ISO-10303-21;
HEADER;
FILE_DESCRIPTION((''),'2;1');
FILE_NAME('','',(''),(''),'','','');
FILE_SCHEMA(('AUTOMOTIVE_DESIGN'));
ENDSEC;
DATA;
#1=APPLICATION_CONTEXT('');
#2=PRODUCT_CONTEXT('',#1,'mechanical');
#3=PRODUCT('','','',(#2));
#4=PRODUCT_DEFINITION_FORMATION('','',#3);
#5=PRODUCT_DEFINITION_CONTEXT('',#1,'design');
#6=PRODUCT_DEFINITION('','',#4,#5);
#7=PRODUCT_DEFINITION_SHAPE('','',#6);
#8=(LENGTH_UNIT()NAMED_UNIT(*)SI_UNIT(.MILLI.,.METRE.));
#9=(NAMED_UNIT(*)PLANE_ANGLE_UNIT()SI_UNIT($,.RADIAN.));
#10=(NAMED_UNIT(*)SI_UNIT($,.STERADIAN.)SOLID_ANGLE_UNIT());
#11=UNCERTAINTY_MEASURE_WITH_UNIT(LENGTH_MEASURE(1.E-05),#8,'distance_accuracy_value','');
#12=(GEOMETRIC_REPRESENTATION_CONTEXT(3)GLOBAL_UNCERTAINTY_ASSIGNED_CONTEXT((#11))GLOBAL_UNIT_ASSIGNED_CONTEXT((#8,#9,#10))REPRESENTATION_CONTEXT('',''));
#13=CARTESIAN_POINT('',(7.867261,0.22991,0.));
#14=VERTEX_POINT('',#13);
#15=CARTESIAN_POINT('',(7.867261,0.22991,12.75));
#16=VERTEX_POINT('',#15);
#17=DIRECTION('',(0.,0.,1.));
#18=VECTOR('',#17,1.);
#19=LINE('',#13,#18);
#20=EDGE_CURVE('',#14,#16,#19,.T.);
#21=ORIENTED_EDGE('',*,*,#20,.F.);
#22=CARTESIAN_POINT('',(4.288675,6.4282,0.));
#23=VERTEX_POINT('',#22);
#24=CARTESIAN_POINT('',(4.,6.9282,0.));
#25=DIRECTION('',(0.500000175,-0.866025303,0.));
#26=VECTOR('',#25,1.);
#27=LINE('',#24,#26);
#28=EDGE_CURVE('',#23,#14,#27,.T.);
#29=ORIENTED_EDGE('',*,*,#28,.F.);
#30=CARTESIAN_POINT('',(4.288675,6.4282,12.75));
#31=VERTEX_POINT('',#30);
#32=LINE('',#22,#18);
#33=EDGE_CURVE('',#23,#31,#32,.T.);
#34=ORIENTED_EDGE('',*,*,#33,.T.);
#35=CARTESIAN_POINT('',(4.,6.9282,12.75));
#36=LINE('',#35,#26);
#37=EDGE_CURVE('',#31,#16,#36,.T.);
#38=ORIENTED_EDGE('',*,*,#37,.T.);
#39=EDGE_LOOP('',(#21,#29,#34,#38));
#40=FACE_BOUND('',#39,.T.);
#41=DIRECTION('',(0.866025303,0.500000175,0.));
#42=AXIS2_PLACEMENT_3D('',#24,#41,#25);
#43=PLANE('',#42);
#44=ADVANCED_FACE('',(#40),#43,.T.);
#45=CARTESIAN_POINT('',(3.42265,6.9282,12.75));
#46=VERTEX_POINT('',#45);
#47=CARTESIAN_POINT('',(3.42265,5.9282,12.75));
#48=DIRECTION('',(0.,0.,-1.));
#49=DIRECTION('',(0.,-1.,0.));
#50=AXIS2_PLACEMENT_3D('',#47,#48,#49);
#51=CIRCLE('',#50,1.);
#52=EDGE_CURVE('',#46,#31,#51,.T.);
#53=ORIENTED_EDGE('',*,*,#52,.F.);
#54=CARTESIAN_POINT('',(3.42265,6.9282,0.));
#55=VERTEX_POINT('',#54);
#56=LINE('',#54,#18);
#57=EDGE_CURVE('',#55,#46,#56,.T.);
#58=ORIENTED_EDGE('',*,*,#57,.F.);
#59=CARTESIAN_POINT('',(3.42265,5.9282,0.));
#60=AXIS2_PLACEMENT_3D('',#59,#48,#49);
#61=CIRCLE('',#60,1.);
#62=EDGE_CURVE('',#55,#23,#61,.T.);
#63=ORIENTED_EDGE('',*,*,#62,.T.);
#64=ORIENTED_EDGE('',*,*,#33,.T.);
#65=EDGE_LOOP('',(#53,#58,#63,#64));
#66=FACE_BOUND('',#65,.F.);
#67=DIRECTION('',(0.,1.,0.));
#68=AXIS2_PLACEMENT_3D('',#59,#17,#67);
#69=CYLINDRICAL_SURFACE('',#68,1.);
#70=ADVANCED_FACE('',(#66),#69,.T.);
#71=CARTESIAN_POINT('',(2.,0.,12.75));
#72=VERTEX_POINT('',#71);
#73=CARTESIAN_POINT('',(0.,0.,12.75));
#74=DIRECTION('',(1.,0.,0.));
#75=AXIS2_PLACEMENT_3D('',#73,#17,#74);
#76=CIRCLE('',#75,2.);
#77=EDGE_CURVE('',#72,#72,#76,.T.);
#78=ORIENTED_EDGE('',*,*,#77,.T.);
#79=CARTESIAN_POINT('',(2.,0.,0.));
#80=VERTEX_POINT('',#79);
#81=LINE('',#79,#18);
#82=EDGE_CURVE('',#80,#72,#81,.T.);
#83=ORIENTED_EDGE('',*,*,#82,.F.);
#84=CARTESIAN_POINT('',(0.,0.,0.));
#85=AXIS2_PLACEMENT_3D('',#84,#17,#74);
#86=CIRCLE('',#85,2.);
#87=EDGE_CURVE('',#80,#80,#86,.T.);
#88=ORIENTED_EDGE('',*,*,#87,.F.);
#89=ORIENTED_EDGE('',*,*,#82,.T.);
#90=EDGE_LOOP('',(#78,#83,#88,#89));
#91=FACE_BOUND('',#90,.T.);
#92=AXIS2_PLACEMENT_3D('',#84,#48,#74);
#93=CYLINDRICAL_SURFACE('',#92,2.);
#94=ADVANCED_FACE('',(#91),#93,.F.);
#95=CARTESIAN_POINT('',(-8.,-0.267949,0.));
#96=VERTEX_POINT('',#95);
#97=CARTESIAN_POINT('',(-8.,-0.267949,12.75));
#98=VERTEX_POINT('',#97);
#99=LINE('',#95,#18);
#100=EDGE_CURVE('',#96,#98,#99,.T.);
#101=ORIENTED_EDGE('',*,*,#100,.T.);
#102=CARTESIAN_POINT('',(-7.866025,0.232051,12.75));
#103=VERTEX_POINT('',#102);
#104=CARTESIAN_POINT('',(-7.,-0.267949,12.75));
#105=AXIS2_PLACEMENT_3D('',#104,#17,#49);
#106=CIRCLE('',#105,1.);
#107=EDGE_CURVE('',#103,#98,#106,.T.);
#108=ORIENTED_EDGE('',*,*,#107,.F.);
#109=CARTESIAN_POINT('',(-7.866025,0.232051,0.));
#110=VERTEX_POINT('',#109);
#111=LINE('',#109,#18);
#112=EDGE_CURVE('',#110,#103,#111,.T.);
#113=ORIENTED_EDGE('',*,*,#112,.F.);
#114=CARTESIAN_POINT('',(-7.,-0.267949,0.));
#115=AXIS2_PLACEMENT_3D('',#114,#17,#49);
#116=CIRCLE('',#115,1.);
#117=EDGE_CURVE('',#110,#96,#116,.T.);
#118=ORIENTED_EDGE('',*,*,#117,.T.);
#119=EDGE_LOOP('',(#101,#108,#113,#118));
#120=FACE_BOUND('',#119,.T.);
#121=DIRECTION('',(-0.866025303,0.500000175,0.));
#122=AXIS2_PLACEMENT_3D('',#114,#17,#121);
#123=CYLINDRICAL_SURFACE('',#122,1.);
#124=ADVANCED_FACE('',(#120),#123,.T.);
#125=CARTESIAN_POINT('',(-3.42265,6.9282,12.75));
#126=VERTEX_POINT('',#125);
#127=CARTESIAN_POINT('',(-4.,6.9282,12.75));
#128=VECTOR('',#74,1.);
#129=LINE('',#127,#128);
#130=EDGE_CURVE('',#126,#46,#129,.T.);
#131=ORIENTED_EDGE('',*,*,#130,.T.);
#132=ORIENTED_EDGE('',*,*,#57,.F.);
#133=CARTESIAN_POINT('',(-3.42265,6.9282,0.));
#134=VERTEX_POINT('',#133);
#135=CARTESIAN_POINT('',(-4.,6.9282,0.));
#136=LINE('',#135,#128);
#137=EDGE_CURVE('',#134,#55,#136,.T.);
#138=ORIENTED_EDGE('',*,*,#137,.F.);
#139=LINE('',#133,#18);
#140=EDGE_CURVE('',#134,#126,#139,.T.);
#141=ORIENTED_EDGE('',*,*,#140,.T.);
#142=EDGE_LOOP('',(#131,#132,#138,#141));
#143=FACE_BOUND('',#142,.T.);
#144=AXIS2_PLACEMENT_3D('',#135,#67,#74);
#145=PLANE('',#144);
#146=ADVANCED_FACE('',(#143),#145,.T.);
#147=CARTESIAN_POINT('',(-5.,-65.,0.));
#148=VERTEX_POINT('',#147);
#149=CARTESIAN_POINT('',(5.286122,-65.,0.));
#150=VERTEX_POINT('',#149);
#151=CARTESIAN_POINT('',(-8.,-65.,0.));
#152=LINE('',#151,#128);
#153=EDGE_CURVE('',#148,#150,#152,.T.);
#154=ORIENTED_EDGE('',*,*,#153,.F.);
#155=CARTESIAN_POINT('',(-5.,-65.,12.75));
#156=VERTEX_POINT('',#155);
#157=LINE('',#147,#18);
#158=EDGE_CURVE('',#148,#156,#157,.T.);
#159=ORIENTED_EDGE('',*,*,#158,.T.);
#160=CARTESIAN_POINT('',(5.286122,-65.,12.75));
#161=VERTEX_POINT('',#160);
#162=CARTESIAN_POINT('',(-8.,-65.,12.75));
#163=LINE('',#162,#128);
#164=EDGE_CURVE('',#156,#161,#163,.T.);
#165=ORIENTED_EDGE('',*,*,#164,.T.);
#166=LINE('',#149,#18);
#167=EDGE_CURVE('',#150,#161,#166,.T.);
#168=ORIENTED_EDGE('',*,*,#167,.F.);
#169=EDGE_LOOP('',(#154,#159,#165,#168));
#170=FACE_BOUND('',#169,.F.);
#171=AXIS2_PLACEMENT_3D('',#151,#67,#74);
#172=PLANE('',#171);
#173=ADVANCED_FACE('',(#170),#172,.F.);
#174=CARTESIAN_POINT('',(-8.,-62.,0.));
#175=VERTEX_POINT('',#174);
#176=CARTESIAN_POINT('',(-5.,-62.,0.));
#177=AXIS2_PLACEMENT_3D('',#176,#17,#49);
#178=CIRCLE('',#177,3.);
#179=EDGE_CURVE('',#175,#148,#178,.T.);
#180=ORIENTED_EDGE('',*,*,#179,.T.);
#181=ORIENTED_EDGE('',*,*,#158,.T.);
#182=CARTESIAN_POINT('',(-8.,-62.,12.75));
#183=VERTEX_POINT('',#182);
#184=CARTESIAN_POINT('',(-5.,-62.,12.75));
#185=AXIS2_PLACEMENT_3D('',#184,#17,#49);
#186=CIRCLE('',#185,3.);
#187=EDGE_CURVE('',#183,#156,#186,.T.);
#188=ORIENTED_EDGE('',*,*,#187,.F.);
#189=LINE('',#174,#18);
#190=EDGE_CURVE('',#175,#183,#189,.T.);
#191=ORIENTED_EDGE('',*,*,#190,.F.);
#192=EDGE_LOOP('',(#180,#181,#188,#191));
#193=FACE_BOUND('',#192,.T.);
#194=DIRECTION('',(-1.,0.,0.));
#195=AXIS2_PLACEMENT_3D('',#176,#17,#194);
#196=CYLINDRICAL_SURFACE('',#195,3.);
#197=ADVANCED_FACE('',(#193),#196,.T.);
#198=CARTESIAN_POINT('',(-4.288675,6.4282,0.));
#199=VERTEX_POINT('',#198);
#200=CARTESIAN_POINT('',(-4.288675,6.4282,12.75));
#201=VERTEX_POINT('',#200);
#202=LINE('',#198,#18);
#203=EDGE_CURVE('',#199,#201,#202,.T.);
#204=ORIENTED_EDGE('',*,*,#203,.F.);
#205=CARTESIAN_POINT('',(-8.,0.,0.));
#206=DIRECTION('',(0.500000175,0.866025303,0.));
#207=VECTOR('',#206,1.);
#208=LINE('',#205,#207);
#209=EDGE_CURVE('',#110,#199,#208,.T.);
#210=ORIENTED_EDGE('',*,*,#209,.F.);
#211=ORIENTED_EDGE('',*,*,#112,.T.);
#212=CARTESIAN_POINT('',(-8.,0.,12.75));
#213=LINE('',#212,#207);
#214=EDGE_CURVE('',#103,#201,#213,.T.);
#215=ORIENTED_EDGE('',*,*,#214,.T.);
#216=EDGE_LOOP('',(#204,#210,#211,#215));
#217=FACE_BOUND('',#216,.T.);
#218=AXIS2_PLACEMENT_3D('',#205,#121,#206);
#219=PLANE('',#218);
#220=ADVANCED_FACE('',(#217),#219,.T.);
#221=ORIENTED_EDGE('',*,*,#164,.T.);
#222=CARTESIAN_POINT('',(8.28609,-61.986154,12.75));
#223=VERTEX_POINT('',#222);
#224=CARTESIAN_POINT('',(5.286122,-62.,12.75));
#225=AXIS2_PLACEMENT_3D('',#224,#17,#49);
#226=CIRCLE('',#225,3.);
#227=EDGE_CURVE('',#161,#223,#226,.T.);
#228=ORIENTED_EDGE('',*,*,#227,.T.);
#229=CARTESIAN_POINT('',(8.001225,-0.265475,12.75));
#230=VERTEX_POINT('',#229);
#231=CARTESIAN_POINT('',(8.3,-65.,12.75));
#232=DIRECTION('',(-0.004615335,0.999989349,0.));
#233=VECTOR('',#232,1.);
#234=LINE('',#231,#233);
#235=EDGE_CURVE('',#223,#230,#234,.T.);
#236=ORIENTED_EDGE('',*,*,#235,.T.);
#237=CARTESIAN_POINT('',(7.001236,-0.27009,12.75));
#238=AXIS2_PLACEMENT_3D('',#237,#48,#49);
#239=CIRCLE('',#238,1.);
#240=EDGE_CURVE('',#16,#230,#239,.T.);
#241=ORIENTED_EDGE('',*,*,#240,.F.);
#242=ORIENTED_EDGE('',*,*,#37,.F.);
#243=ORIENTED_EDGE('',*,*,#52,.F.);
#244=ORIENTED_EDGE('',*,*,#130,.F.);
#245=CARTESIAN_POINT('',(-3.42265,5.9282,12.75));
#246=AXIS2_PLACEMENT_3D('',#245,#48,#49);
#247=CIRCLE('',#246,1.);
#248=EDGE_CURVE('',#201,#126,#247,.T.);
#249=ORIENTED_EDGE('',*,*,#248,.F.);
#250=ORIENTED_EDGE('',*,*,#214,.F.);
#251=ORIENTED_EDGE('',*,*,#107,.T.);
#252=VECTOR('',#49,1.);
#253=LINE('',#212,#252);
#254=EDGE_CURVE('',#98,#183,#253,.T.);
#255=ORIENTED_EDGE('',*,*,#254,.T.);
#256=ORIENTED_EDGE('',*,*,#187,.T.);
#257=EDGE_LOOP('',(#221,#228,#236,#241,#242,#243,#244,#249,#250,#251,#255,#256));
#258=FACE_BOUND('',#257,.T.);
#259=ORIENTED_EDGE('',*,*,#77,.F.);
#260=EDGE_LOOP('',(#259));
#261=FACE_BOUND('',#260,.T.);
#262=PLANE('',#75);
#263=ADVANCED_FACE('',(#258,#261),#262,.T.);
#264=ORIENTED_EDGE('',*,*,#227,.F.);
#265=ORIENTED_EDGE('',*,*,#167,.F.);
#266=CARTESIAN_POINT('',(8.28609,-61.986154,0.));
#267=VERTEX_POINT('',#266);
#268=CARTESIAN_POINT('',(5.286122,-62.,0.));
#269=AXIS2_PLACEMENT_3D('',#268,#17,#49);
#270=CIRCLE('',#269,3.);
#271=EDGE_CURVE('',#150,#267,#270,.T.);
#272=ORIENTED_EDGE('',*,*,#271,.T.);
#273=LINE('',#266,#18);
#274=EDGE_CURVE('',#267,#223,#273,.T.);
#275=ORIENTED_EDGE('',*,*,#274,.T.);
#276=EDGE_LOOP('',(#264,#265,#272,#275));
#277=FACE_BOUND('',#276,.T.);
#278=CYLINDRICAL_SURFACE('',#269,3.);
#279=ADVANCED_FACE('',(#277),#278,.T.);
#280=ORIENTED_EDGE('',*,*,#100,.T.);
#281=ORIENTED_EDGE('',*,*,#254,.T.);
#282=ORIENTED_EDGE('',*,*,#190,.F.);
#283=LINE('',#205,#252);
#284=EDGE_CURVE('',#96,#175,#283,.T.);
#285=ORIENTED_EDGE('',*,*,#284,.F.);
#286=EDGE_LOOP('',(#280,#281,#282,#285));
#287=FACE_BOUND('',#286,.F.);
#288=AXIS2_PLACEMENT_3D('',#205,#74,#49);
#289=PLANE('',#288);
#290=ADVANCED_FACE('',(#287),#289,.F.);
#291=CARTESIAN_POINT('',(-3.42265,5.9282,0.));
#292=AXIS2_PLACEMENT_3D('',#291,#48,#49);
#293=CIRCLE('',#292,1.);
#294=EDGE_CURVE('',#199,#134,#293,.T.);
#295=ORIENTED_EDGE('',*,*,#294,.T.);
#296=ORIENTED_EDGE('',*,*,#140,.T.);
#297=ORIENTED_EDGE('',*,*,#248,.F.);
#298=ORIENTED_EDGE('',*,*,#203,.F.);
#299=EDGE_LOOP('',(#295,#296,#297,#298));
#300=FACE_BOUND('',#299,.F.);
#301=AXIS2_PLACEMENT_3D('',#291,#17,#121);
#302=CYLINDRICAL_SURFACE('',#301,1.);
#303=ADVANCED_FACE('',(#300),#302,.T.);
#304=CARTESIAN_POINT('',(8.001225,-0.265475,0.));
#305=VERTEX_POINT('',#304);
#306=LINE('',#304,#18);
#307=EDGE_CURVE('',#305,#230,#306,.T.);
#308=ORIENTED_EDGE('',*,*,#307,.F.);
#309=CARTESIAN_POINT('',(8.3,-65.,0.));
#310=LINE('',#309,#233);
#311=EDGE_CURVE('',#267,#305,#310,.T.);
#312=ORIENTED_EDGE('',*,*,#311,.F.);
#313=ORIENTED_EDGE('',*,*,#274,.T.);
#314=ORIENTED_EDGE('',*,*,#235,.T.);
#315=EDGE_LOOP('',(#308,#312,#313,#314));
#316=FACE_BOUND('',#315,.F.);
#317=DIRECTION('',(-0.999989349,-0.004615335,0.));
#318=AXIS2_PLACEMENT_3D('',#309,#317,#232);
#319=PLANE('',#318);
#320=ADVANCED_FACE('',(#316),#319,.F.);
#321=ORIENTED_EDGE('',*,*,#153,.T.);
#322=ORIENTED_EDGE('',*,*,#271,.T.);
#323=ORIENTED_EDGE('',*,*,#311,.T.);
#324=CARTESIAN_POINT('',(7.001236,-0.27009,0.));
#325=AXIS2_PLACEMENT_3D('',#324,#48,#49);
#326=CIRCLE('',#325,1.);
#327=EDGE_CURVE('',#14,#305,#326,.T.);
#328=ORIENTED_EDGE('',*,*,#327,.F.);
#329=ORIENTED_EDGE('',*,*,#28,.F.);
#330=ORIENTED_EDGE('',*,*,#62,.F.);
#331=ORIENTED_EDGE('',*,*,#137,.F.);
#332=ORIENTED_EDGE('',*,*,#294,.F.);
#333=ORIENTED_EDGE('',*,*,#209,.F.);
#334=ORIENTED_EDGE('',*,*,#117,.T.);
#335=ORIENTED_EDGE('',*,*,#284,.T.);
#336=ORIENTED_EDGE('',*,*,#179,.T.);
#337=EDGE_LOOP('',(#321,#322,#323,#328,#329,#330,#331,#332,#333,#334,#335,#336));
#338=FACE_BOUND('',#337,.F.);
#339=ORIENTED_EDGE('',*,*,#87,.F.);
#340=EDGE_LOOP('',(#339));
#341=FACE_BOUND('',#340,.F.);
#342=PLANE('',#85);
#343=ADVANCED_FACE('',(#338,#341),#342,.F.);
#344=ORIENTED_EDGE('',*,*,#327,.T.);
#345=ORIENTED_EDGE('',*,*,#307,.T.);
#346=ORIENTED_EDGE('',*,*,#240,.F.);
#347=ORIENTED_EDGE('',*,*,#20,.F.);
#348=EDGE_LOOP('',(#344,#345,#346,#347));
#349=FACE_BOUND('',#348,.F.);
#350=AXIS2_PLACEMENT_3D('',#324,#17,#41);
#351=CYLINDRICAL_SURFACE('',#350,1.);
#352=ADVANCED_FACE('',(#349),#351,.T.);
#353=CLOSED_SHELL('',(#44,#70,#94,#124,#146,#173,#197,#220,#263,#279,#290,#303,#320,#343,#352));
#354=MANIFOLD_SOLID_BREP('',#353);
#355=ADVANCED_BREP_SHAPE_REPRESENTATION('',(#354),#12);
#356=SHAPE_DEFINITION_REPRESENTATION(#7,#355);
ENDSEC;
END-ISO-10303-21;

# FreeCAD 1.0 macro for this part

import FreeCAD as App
import Part
import Sketcher
Q = App.Units.Quantity


def edges_at(feature, points):
    """Names of the edges that pass closest to the given points."""
    edges = feature.Shape.Edges
    near = lambda p: min(range(len(edges)), key=lambda i: edges[i].distToShape(Part.Vertex(*p))[0])
    return sorted({f"Edge{near(p) + 1}" for p in points})


def add_polygon(sketch, points):
    """Adds a closed chain of lines whose ends are joined by coincident constraints."""
    first, n = sketch.GeometryCount, len(points)
    for a, b in zip(points, points[1:] + points[:1]):
        sketch.addGeometry(Part.LineSegment(App.Vector(*a, 0), App.Vector(*b, 0)), False)
    for i in range(n):
        sketch.addConstraint(Sketcher.Constraint("Coincident", first + i, 2, first + (i + 1) % n, 1))

doc = App.newDocument("Part")
params = doc.addObject("Spreadsheet::Sheet", "Params")
for row, (alias, value) in enumerate([
    ("sketch1_diameter", "4 mm"),
    ("sketch1_height", "65 mm"),
    ("sketch1_width", "16.3 mm"),
    ("pad1_length", "12.75 mm"),
    ("fillet_radius", "1 mm"),
    ("fillet2_radius", "3 mm"),
], start=1):
    params.set(f"A{row}", alias)
    params.set(f"B{row}", "=" + value)
    params.setAlias(f"B{row}", alias)

body = doc.addObject("PartDesign::Body", "Body")

# Sketch on XY plane
sketch1 = body.newObject("Sketcher::SketchObject", "Sketch")
sketch1.AttachmentSupport = (doc.getObject("XY_Plane"), [""])
sketch1.MapMode = "FlatFace"
add_polygon(sketch1, [(-4, 6.9), (-8, 0), (-8, -65), (8.3, -65), (8, 0), (4, 6.9)])  # lines 0-5
sketch1.addGeometry(Part.Circle(App.Vector(0, 0, 0), App.Vector(0, 0, 1), 2), False)  # 6
sketch1.addConstraint([
    Sketcher.Constraint("Vertical", 1),
    Sketcher.Constraint("Horizontal", 2),
    Sketcher.Constraint("Horizontal", 5),
    Sketcher.Constraint("Coincident", 6, 3, -1, 1),
    Sketcher.Constraint("Symmetric", 0, 2, 3, 2, -1, 1),
    Sketcher.Constraint("PointOnObject", 0, 2, -1),
    Sketcher.Constraint("Equal", 0, 4),
    Sketcher.Constraint("Diameter", 6, Q("4 mm")),
    Sketcher.Constraint("DistanceY", 1, 2, 1, 1, Q("65 mm")),
    Sketcher.Constraint("DistanceX", 2, 1, 2, 2, Q("16.3 mm")),
    Sketcher.Constraint("DistanceX", -1, 1, 4, 2, Q("4 mm")),
    Sketcher.Constraint("DistanceX", 4, 2, 3, 2, Q("4 mm")),
    Sketcher.Constraint("Angle", 0, Q("-120 deg")),
])
sketch1.setExpression("Constraints[13]", "Params.sketch1_diameter")
sketch1.setExpression("Constraints[14]", "Params.sketch1_height")
sketch1.setExpression("Constraints[15]", "Params.sketch1_width")
pad1 = body.newObject("PartDesign::Pad", "Pad")
pad1.Profile = sketch1
pad1.setExpression("Length", "Params.pad1_length")
doc.recompute()

fillet = body.newObject("PartDesign::Fillet", "Fillet")
fillet.Base = (pad1, edges_at(pad1, [
    (-4, 6.928, 6.375),
    (4, 6.928, 6.375),
    (8, 0, 6.375),
    (-8, 0, 6.375),
]))
fillet.setExpression("Radius", "Params.fillet_radius")
doc.recompute()

fillet2 = body.newObject("PartDesign::Fillet", "Fillet001")
fillet2.Base = (fillet, edges_at(fillet, [(8.3, -65, 6.375), (-8, -65, 6.375)]))
fillet2.setExpression("Radius", "Params.fillet2_radius")

doc.recompute()
